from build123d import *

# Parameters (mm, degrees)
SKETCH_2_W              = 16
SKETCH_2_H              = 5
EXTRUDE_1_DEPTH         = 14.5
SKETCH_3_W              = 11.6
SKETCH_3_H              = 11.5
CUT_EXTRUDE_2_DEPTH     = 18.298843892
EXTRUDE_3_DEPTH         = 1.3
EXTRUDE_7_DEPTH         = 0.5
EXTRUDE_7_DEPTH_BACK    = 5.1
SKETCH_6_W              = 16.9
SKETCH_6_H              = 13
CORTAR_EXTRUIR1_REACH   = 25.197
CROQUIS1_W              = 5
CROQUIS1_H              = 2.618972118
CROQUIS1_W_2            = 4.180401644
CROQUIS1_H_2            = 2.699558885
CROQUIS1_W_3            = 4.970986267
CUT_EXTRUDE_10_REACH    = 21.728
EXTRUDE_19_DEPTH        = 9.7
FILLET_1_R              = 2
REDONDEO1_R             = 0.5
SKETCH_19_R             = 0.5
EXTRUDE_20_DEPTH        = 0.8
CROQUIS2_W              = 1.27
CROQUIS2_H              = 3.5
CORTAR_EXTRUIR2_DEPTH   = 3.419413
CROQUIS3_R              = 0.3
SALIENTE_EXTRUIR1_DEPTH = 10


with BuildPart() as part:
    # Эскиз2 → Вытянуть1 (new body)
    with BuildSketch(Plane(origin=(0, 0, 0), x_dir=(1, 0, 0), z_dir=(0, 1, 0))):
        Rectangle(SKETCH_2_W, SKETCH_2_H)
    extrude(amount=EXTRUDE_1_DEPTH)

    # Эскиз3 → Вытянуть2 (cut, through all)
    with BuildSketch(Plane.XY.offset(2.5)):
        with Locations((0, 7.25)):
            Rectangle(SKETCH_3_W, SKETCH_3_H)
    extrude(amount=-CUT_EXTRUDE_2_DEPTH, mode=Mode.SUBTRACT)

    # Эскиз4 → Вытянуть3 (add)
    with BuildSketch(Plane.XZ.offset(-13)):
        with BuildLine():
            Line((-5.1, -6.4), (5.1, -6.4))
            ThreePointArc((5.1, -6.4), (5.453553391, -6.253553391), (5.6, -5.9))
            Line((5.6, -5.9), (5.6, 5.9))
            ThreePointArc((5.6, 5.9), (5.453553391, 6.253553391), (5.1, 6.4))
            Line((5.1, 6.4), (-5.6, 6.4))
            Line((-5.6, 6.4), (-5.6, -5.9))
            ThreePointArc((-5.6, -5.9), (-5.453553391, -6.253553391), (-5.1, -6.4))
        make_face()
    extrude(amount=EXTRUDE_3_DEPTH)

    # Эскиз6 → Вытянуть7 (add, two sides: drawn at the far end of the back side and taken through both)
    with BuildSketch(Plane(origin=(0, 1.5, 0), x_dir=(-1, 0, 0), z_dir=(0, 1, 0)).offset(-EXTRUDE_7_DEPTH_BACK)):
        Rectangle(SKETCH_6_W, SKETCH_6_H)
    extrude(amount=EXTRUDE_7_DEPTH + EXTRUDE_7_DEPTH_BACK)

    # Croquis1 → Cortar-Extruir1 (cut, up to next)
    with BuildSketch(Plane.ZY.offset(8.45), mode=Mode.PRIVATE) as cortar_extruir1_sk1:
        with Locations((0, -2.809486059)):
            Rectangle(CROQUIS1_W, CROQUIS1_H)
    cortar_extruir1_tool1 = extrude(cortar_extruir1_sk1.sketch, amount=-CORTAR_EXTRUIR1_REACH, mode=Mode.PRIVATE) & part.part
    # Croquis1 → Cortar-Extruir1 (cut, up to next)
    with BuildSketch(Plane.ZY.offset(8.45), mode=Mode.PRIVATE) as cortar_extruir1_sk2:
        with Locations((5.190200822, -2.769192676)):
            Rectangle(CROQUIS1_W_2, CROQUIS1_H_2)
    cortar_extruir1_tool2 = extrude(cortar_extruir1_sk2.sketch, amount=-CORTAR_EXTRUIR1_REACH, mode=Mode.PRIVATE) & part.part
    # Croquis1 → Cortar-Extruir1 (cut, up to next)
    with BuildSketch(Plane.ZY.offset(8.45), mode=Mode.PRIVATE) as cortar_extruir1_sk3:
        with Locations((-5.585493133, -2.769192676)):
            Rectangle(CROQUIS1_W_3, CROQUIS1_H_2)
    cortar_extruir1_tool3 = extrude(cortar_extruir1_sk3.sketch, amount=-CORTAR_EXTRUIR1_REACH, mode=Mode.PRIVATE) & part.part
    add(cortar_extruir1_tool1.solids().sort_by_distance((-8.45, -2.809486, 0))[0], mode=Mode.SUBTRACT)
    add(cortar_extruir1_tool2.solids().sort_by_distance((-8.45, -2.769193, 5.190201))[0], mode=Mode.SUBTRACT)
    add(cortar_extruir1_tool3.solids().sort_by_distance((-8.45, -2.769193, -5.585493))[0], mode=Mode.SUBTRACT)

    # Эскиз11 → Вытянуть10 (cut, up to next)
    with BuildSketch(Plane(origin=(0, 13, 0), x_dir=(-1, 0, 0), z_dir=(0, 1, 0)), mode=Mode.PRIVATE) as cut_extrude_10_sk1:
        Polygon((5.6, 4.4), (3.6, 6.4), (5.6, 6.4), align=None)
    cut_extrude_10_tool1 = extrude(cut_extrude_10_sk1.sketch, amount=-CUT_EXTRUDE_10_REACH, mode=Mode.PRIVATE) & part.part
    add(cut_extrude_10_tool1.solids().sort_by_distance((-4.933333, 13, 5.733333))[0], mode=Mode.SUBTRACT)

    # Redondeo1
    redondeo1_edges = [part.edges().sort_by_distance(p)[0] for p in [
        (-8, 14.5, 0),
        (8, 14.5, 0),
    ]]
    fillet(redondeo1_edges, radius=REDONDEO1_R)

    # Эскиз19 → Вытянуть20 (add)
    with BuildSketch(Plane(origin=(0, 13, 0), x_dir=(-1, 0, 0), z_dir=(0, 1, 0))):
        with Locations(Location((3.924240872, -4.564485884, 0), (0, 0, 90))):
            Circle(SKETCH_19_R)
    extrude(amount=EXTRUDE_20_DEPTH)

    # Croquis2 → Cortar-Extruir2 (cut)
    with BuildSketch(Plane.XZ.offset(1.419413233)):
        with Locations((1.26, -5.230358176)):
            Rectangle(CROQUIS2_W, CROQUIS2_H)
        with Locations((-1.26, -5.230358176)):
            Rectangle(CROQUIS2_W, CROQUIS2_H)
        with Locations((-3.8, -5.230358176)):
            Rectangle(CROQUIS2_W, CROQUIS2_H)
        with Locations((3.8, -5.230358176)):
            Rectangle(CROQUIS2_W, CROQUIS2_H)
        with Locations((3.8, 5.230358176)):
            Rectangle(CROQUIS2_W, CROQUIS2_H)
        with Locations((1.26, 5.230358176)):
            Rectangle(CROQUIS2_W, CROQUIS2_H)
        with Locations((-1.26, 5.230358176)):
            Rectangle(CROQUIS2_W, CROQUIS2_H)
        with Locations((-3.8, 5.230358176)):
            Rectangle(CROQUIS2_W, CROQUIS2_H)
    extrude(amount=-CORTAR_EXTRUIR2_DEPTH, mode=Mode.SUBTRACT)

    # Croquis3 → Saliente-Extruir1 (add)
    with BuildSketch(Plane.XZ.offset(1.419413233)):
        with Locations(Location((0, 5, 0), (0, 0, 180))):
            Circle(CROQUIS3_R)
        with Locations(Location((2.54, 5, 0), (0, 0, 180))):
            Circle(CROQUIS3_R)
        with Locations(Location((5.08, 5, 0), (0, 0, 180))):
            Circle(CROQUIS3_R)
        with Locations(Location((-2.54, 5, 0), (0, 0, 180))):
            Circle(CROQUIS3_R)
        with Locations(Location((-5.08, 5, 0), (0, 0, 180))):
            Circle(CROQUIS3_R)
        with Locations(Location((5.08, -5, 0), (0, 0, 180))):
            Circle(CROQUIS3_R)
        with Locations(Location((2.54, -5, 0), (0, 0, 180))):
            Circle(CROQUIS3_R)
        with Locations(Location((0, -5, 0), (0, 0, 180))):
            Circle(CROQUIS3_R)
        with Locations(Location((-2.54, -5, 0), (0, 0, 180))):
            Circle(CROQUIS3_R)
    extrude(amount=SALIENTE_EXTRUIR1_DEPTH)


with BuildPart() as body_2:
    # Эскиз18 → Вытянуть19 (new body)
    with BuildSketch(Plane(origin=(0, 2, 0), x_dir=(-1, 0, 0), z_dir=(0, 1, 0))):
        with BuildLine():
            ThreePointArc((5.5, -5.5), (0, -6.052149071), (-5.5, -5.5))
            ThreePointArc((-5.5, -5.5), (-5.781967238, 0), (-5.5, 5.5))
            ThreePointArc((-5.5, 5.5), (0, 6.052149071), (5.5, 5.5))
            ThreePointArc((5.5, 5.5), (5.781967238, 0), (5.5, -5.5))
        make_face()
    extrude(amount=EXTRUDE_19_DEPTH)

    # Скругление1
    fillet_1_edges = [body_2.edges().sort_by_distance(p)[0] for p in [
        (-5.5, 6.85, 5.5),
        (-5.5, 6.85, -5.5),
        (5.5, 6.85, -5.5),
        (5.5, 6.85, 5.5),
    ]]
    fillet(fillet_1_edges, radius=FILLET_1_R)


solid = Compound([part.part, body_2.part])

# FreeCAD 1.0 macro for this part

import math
import FreeCAD as App
import Part
import Sketcher
Q = App.Units.Quantity


def edges_at(feature, points):
    """Names of the edges that pass closest to the given points."""
    edges = feature.Shape.Edges
    near = lambda p: min(range(len(edges)), key=lambda i: edges[i].distToShape(Part.Vertex(*p))[0])
    return sorted({f"Edge{near(p) + 1}" for p in points})

doc = App.newDocument("Part")
body = doc.addObject("PartDesign::Body", "Body")

sketch1 = body.newObject("Sketcher::SketchObject", "Sketch")
sketch1.AttachmentSupport = (doc.getObject("XZ_Plane"), [""])
sketch1.MapMode = "FlatFace"
sketch1.addGeometry(Part.LineSegment(App.Vector(-8, -2.5, 0), App.Vector(-8, 2.5, 0)), False)
sketch1.addGeometry(Part.LineSegment(App.Vector(-8, 2.5, 0), App.Vector(8, 2.5, 0)), False)
sketch1.addGeometry(Part.LineSegment(App.Vector(8, 2.5, 0), App.Vector(8, -2.5, 0)), False)
sketch1.addGeometry(Part.LineSegment(App.Vector(8, -2.5, 0), App.Vector(-8, -2.5, 0)), False)
sketch1.addConstraint(Sketcher.Constraint("Coincident", 0, 2, 1, 1))
sketch1.addConstraint(Sketcher.Constraint("Coincident", 1, 2, 2, 1))
sketch1.addConstraint(Sketcher.Constraint("Coincident", 2, 2, 3, 1))
sketch1.addConstraint(Sketcher.Constraint("Coincident", 3, 2, 0, 1))
sketch1.addConstraint(Sketcher.Constraint("Vertical", 0))
sketch1.addConstraint(Sketcher.Constraint("Horizontal", 1))
sketch1.addConstraint(Sketcher.Constraint("Vertical", 2))
sketch1.addConstraint(Sketcher.Constraint("Horizontal", 3))
sketch1.addConstraint(Sketcher.Constraint("Symmetric", 0, 2, 2, 2, -1, 1))
sketch1.addConstraint(Sketcher.Constraint("DistanceX", 1, 1, 1, 2, Q("16 mm")))
sketch1.addConstraint(Sketcher.Constraint("DistanceY", 0, 1, 0, 2, Q("5 mm")))
pad1 = body.newObject("PartDesign::Pad", "Pad")
pad1.Profile = sketch1
pad1.Length = 14.5
pad1.Reversed = True

sketch2 = body.newObject("Sketcher::SketchObject", "Sketch001")
sketch2.AttachmentSupport = (doc.getObject("XY_Plane"), [""])
sketch2.MapMode = "FlatFace"
sketch2.AttachmentOffset = App.Placement(App.Vector(0, 0, 2.5), App.Rotation())
sketch2.addGeometry(Part.LineSegment(App.Vector(-5.8, 13, 0), App.Vector(-5.8, 1.5, 0)), False)
sketch2.addGeometry(Part.LineSegment(App.Vector(-5.8, 1.5, 0), App.Vector(5.8, 1.5, 0)), False)
sketch2.addGeometry(Part.LineSegment(App.Vector(5.8, 1.5, 0), App.Vector(5.8, 13, 0)), False)
sketch2.addGeometry(Part.LineSegment(App.Vector(5.8, 13, 0), App.Vector(-5.8, 13, 0)), False)
sketch2.addConstraint(Sketcher.Constraint("Coincident", 0, 2, 1, 1))
sketch2.addConstraint(Sketcher.Constraint("Coincident", 1, 2, 2, 1))
sketch2.addConstraint(Sketcher.Constraint("Coincident", 2, 2, 3, 1))
sketch2.addConstraint(Sketcher.Constraint("Coincident", 3, 2, 0, 1))
sketch2.addConstraint(Sketcher.Constraint("Vertical", 0))
sketch2.addConstraint(Sketcher.Constraint("Horizontal", 1))
sketch2.addConstraint(Sketcher.Constraint("Vertical", 2))
sketch2.addConstraint(Sketcher.Constraint("Horizontal", 3))
sketch2.addConstraint(Sketcher.Constraint("DistanceX", 1, 1, 1, 2, Q("11.6 mm")))
sketch2.addConstraint(Sketcher.Constraint("DistanceY", 0, 2, 0, 1, Q("11.5 mm")))
sketch2.addConstraint(Sketcher.Constraint("DistanceY", -1, 1, 2, 2, Q("13 mm")))
sketch2.addConstraint(Sketcher.Constraint("DistanceX", 0, 2, -1, 1, Q("5.8 mm")))
pocket1 = body.newObject("PartDesign::Pocket", "Pocket")
pocket1.Profile = sketch2
pocket1.Type = "ThroughAll"

sketch3 = body.newObject("Sketcher::SketchObject", "Sketch002")
sketch3.AttachmentSupport = (doc.getObject("XZ_Plane"), [""])
sketch3.MapMode = "FlatFace"
sketch3.AttachmentOffset = App.Placement(App.Vector(0, 0, -13), App.Rotation())
sketch3.addGeometry(Part.LineSegment(App.Vector(-5.1, -6.4, 0), App.Vector(5.1, -6.4, 0)), False)
sketch3.addGeometry(Part.ArcOfCircle(Part.Circle(App.Vector(5.1, -5.9, 0), App.Vector(0, 0, 1), 0.5), math.radians(-90), math.radians(0)), False)
sketch3.addGeometry(Part.LineSegment(App.Vector(5.6, -5.9, 0), App.Vector(5.6, 5.9, 0)), False)
sketch3.addGeometry(Part.ArcOfCircle(Part.Circle(App.Vector(5.1, 5.9, 0), App.Vector(0, 0, 1), 0.5), math.radians(0), math.radians(90)), False)
sketch3.addGeometry(Part.LineSegment(App.Vector(5.1, 6.4, 0), App.Vector(-5.6, 6.4, 0)), False)
sketch3.addGeometry(Part.LineSegment(App.Vector(-5.6, 6.4, 0), App.Vector(-5.6, -5.9, 0)), False)
sketch3.addGeometry(Part.ArcOfCircle(Part.Circle(App.Vector(-5.1, -5.9, 0), App.Vector(0, 0, 1), 0.5), math.radians(180), math.radians(270)), False)
sketch3.addConstraint(Sketcher.Constraint("Tangent", 0, 2, 1, 1))
sketch3.addConstraint(Sketcher.Constraint("Tangent", 1, 2, 2, 1))
sketch3.addConstraint(Sketcher.Constraint("Tangent", 2, 2, 3, 1))
sketch3.addConstraint(Sketcher.Constraint("Tangent", 3, 2, 4, 1))
sketch3.addConstraint(Sketcher.Constraint("Coincident", 4, 2, 5, 1))
sketch3.addConstraint(Sketcher.Constraint("Tangent", 5, 2, 6, 1))
sketch3.addConstraint(Sketcher.Constraint("Tangent", 6, 2, 0, 1))
sketch3.addConstraint(Sketcher.Constraint("Horizontal", 0))
sketch3.addConstraint(Sketcher.Constraint("Vertical", 2))
sketch3.addConstraint(Sketcher.Constraint("Horizontal", 4))
sketch3.addConstraint(Sketcher.Constraint("Vertical", 5))
sketch3.addConstraint(Sketcher.Constraint("Equal", 1, 3))
sketch3.addConstraint(Sketcher.Constraint("Equal", 3, 6))
sketch3.addConstraint(Sketcher.Constraint("Symmetric", 3, 3, 6, 3, -1, 1))
sketch3.addConstraint(Sketcher.Constraint("Radius", 1, Q("0.5 mm")))
sketch3.addConstraint(Sketcher.Constraint("DistanceX", 0, 1, 0, 2, Q("10.2 mm")))
sketch3.addConstraint(Sketcher.Constraint("DistanceY", 2, 1, 2, 2, Q("11.8 mm")))
pad2 = body.newObject("PartDesign::Pad", "Pad001")
pad2.Profile = sketch3
pad2.Length = 1.3

sketch4 = body.newObject("Sketcher::SketchObject", "Sketch003")
sketch4.AttachmentSupport = (doc.getObject("XZ_Plane"), [""])
sketch4.MapMode = "FlatFace"
sketch4.AttachmentOffset = App.Placement(App.Vector(0, 0, -1.5), App.Rotation())
sketch4.addGeometry(Part.LineSegment(App.Vector(8.45, 6.5, 0), App.Vector(8.45, -6.5, 0)), False)
sketch4.addGeometry(Part.LineSegment(App.Vector(8.45, -6.5, 0), App.Vector(-8.45, -6.5, 0)), False)
sketch4.addGeometry(Part.LineSegment(App.Vector(-8.45, -6.5, 0), App.Vector(-8.45, 6.5, 0)), False)
sketch4.addGeometry(Part.LineSegment(App.Vector(-8.45, 6.5, 0), App.Vector(8.45, 6.5, 0)), False)
sketch4.addConstraint(Sketcher.Constraint("Coincident", 0, 2, 1, 1))
sketch4.addConstraint(Sketcher.Constraint("Coincident", 1, 2, 2, 1))
sketch4.addConstraint(Sketcher.Constraint("Coincident", 2, 2, 3, 1))
sketch4.addConstraint(Sketcher.Constraint("Coincident", 3, 2, 0, 1))
sketch4.addConstraint(Sketcher.Constraint("Vertical", 0))
sketch4.addConstraint(Sketcher.Constraint("Horizontal", 1))
sketch4.addConstraint(Sketcher.Constraint("Vertical", 2))
sketch4.addConstraint(Sketcher.Constraint("Horizontal", 3))
sketch4.addConstraint(Sketcher.Constraint("Symmetric", 0, 2, 2, 2, -1, 1))
sketch4.addConstraint(Sketcher.Constraint("DistanceY", 0, 2, 0, 1, Q("13 mm")))
sketch4.addConstraint(Sketcher.Constraint("DistanceX", 1, 2, 1, 1, Q("16.9 mm")))
pad3 = body.newObject("PartDesign::Pad", "Pad002")
pad3.Profile = sketch4
pad3.Type = "TwoLengths"
pad3.Length = 0.5
pad3.Length2 = 5.1
pad3.Reversed = True

sketch5 = body.newObject("Sketcher::SketchObject", "Sketch004")
sketch5.AttachmentSupport = (doc.getObject("YZ_Plane"), [""])
sketch5.MapMode = "FlatFace"
sketch5.AttachmentOffset = App.Placement(App.Vector(0, 0, -8.45), App.Rotation())
sketch5.addGeometry(Part.LineSegment(App.Vector(-1.5, -2.5, 0), App.Vector(-4.118972, -2.5, 0)), False)
sketch5.addGeometry(Part.LineSegment(App.Vector(-4.118972, -2.5, 0), App.Vector(-4.118972, 2.5, 0)), False)
sketch5.addGeometry(Part.LineSegment(App.Vector(-4.118972, 2.5, 0), App.Vector(-1.5, 2.5, 0)), False)
sketch5.addGeometry(Part.LineSegment(App.Vector(-1.5, 2.5, 0), App.Vector(-1.5, -2.5, 0)), False)
sketch5.addConstraint(Sketcher.Constraint("Coincident", 0, 2, 1, 1))
sketch5.addConstraint(Sketcher.Constraint("Coincident", 1, 2, 2, 1))
sketch5.addConstraint(Sketcher.Constraint("Coincident", 2, 2, 3, 1))
sketch5.addConstraint(Sketcher.Constraint("Coincident", 3, 2, 0, 1))
sketch5.addConstraint(Sketcher.Constraint("Horizontal", 0))
sketch5.addConstraint(Sketcher.Constraint("Vertical", 1))
sketch5.addConstraint(Sketcher.Constraint("Horizontal", 2))
sketch5.addConstraint(Sketcher.Constraint("Vertical", 3))
sketch5.addConstraint(Sketcher.Constraint("DistanceY", 1, 1, 1, 2, Q("5 mm")))
sketch5.addConstraint(Sketcher.Constraint("DistanceY", 0, 2, -1, 1, Q("2.5 mm")))
sketch5.addConstraint(Sketcher.Constraint("DistanceX", 2, 2, -1, 1, Q("1.5 mm")))
sketch5.addConstraint(Sketcher.Constraint("DistanceX", 0, 2, 0, 1, Q("2.618972 mm")))
pocket2 = body.newObject("PartDesign::Pocket", "Pocket001")
pocket2.Profile = sketch5
pocket2.Type = "UpToFirst"
pocket2.Reversed = True

sketch6 = body.newObject("Sketcher::SketchObject", "Sketch005")
sketch6.AttachmentSupport = (doc.getObject("YZ_Plane"), [""])
sketch6.MapMode = "FlatFace"
sketch6.AttachmentOffset = App.Placement(App.Vector(0, 0, -8.45), App.Rotation())
sketch6.addGeometry(Part.LineSegment(App.Vector(-1.419413, 3.1, 0), App.Vector(-4.118972, 3.1, 0)), False)
sketch6.addGeometry(Part.LineSegment(App.Vector(-4.118972, 3.1, 0), App.Vector(-4.118972, 7.280402, 0)), False)
sketch6.addGeometry(Part.LineSegment(App.Vector(-4.118972, 7.280402, 0), App.Vector(-1.419413, 7.280402, 0)), False)
sketch6.addGeometry(Part.LineSegment(App.Vector(-1.419413, 7.280402, 0), App.Vector(-1.419413, 3.1, 0)), False)
sketch6.addConstraint(Sketcher.Constraint("Coincident", 0, 2, 1, 1))
sketch6.addConstraint(Sketcher.Constraint("Coincident", 1, 2, 2, 1))
sketch6.addConstraint(Sketcher.Constraint("Coincident", 2, 2, 3, 1))
sketch6.addConstraint(Sketcher.Constraint("Coincident", 3, 2, 0, 1))
sketch6.addConstraint(Sketcher.Constraint("Horizontal", 0))
sketch6.addConstraint(Sketcher.Constraint("Vertical", 1))
sketch6.addConstraint(Sketcher.Constraint("Horizontal", 2))
sketch6.addConstraint(Sketcher.Constraint("Vertical", 3))
sketch6.addConstraint(Sketcher.Constraint("DistanceY", -1, 1, 0, 2, Q("3.1 mm")))
sketch6.addConstraint(Sketcher.Constraint("DistanceY", 1, 1, 1, 2, Q("4.180402 mm")))
sketch6.addConstraint(Sketcher.Constraint("DistanceX", 0, 2, 0, 1, Q("2.699559 mm")))
sketch6.addConstraint(Sketcher.Constraint("DistanceX", 0, 2, -1, 1, Q("4.118972 mm")))
pocket3 = body.newObject("PartDesign::Pocket", "Pocket002")
pocket3.Profile = sketch6
pocket3.Type = "UpToFirst"
pocket3.Reversed = True

sketch7 = body.newObject("Sketcher::SketchObject", "Sketch006")
sketch7.AttachmentSupport = (doc.getObject("YZ_Plane"), [""])
sketch7.MapMode = "FlatFace"
sketch7.AttachmentOffset = App.Placement(App.Vector(0, 0, -8.45), App.Rotation())
sketch7.addGeometry(Part.LineSegment(App.Vector(-1.419413, -8.070986, 0), App.Vector(-4.118972, -8.070986, 0)), False)
sketch7.addGeometry(Part.LineSegment(App.Vector(-4.118972, -8.070986, 0), App.Vector(-4.118972, -3.1, 0)), False)
sketch7.addGeometry(Part.LineSegment(App.Vector(-4.118972, -3.1, 0), App.Vector(-1.419413, -3.1, 0)), False)
sketch7.addGeometry(Part.LineSegment(App.Vector(-1.419413, -3.1, 0), App.Vector(-1.419413, -8.070986, 0)), False)
sketch7.addConstraint(Sketcher.Constraint("Coincident", 0, 2, 1, 1))
sketch7.addConstraint(Sketcher.Constraint("Coincident", 1, 2, 2, 1))
sketch7.addConstraint(Sketcher.Constraint("Coincident", 2, 2, 3, 1))
sketch7.addConstraint(Sketcher.Constraint("Coincident", 3, 2, 0, 1))
sketch7.addConstraint(Sketcher.Constraint("Horizontal", 0))
sketch7.addConstraint(Sketcher.Constraint("Vertical", 1))
sketch7.addConstraint(Sketcher.Constraint("Horizontal", 2))
sketch7.addConstraint(Sketcher.Constraint("Vertical", 3))
sketch7.addConstraint(Sketcher.Constraint("DistanceY", 1, 2, -1, 1, Q("3.1 mm")))
sketch7.addConstraint(Sketcher.Constraint("DistanceX", 0, 2, 0, 1, Q("2.699559 mm")))
sketch7.addConstraint(Sketcher.Constraint("DistanceY", 1, 1, 1, 2, Q("4.970986 mm")))
sketch7.addConstraint(Sketcher.Constraint("DistanceX", 0, 2, -1, 1, Q("4.118972 mm")))
pocket4 = body.newObject("PartDesign::Pocket", "Pocket003")
pocket4.Profile = sketch7
pocket4.Type = "UpToFirst"
pocket4.Reversed = True

sketch8 = body.newObject("Sketcher::SketchObject", "Sketch007")
sketch8.AttachmentSupport = (doc.getObject("XZ_Plane"), [""])
sketch8.MapMode = "FlatFace"
sketch8.AttachmentOffset = App.Placement(App.Vector(0, 0, -13), App.Rotation())
sketch8.addGeometry(Part.LineSegment(App.Vector(-3.6, 6.4, 0), App.Vector(-5.6, 4.4, 0)), False)
sketch8.addGeometry(Part.LineSegment(App.Vector(-5.6, 4.4, 0), App.Vector(-5.6, 6.4, 0)), False)
sketch8.addGeometry(Part.LineSegment(App.Vector(-5.6, 6.4, 0), App.Vector(-3.6, 6.4, 0)), False)
sketch8.addConstraint(Sketcher.Constraint("Coincident", 0, 2, 1, 1))
sketch8.addConstraint(Sketcher.Constraint("Coincident", 1, 2, 2, 1))
sketch8.addConstraint(Sketcher.Constraint("Coincident", 2, 2, 0, 1))
sketch8.addConstraint(Sketcher.Constraint("Vertical", 1))
sketch8.addConstraint(Sketcher.Constraint("Horizontal", 2))
sketch8.addConstraint(Sketcher.Constraint("Equal", 2, 1))
sketch8.addConstraint(Sketcher.Constraint("DistanceX", 2, 1, 2, 2, Q("2 mm")))
sketch8.addConstraint(Sketcher.Constraint("DistanceX", 0, 2, -1, 1, Q("5.6 mm")))
sketch8.addConstraint(Sketcher.Constraint("DistanceY", -1, 1, 0, 2, Q("4.4 mm")))
pocket5 = body.newObject("PartDesign::Pocket", "Pocket004")
pocket5.Profile = sketch8
pocket5.Type = "UpToFirst"
pocket5.Reversed = True
doc.recompute()

fillet = body.newObject("PartDesign::Fillet", "Fillet")
fillet.Base = (pocket5, edges_at(pocket5, [(-8, 14.5, 0), (8, 14.5, 0)]))
fillet.Radius = 0.5

sketch9 = body.newObject("Sketcher::SketchObject", "Sketch008")
sketch9.AttachmentSupport = (doc.getObject("XZ_Plane"), [""])
sketch9.MapMode = "FlatFace"
sketch9.AttachmentOffset = App.Placement(App.Vector(0, 0, -13), App.Rotation())
sketch9.addGeometry(Part.Circle(App.Vector(-3.924241, -4.564486, 0), App.Vector(0, 0, 1), 0.5), False)
sketch9.addConstraint(Sketcher.Constraint("Diameter", 0, Q("1 mm")))
sketch9.addConstraint(Sketcher.Constraint("DistanceX", 0, 3, -1, 1, Q("3.924241 mm")))
sketch9.addConstraint(Sketcher.Constraint("DistanceY", 0, 3, -1, 1, Q("4.564486 mm")))
pad4 = body.newObject("PartDesign::Pad", "Pad003")
pad4.Profile = sketch9
pad4.Length = 0.8
pad4.Reversed = True

sketch10 = body.newObject("Sketcher::SketchObject", "Sketch009")
sketch10.AttachmentSupport = (doc.getObject("XZ_Plane"), [""])
sketch10.MapMode = "FlatFace"
sketch10.AttachmentOffset = App.Placement(App.Vector(0, 0, 1.419413), App.Rotation())
sketch10.addGeometry(Part.LineSegment(App.Vector(0.625, -3.480358, 0), App.Vector(0.625, -6.980358, 0)), False)
sketch10.addGeometry(Part.LineSegment(App.Vector(0.625, -6.980358, 0), App.Vector(1.895, -6.980358, 0)), False)
sketch10.addGeometry(Part.LineSegment(App.Vector(1.895, -6.980358, 0), App.Vector(1.895, -3.480358, 0)), False)
sketch10.addGeometry(Part.LineSegment(App.Vector(1.895, -3.480358, 0), App.Vector(0.625, -3.480358, 0)), False)
sketch10.addGeometry(Part.LineSegment(App.Vector(-1.895, -3.480358, 0), App.Vector(-1.895, -6.980358, 0)), False)
sketch10.addGeometry(Part.LineSegment(App.Vector(-1.895, -6.980358, 0), App.Vector(-0.625, -6.980358, 0)), False)
sketch10.addGeometry(Part.LineSegment(App.Vector(-0.625, -6.980358, 0), App.Vector(-0.625, -3.480358, 0)), False)
sketch10.addGeometry(Part.LineSegment(App.Vector(-0.625, -3.480358, 0), App.Vector(-1.895, -3.480358, 0)), False)
sketch10.addGeometry(Part.LineSegment(App.Vector(-4.435, -3.480358, 0), App.Vector(-4.435, -6.980358, 0)), False)
sketch10.addGeometry(Part.LineSegment(App.Vector(-4.435, -6.980358, 0), App.Vector(-3.165, -6.980358, 0)), False)
sketch10.addGeometry(Part.LineSegment(App.Vector(-3.165, -6.980358, 0), App.Vector(-3.165, -3.480358, 0)), False)
sketch10.addGeometry(Part.LineSegment(App.Vector(-3.165, -3.480358, 0), App.Vector(-4.435, -3.480358, 0)), False)
sketch10.addGeometry(Part.LineSegment(App.Vector(3.165, -3.480358, 0), App.Vector(3.165, -6.980358, 0)), False)
sketch10.addGeometry(Part.LineSegment(App.Vector(3.165, -6.980358, 0), App.Vector(4.435, -6.980358, 0)), False)
sketch10.addGeometry(Part.LineSegment(App.Vector(4.435, -6.980358, 0), App.Vector(4.435, -3.480358, 0)), False)
sketch10.addGeometry(Part.LineSegment(App.Vector(4.435, -3.480358, 0), App.Vector(3.165, -3.480358, 0)), False)
sketch10.addGeometry(Part.LineSegment(App.Vector(3.165, 6.980358, 0), App.Vector(3.165, 3.480358, 0)), False)
sketch10.addGeometry(Part.LineSegment(App.Vector(3.165, 3.480358, 0), App.Vector(4.435, 3.480358, 0)), False)
sketch10.addGeometry(Part.LineSegment(App.Vector(4.435, 3.480358, 0), App.Vector(4.435, 6.980358, 0)), False)
sketch10.addGeometry(Part.LineSegment(App.Vector(4.435, 6.980358, 0), App.Vector(3.165, 6.980358, 0)), False)
sketch10.addGeometry(Part.LineSegment(App.Vector(0.625, 6.980358, 0), App.Vector(0.625, 3.480358, 0)), False)
sketch10.addGeometry(Part.LineSegment(App.Vector(0.625, 3.480358, 0), App.Vector(1.895, 3.480358, 0)), False)
sketch10.addGeometry(Part.LineSegment(App.Vector(1.895, 3.480358, 0), App.Vector(1.895, 6.980358, 0)), False)
sketch10.addGeometry(Part.LineSegment(App.Vector(1.895, 6.980358, 0), App.Vector(0.625, 6.980358, 0)), False)
sketch10.addGeometry(Part.LineSegment(App.Vector(-1.895, 6.980358, 0), App.Vector(-1.895, 3.480358, 0)), False)
sketch10.addGeometry(Part.LineSegment(App.Vector(-1.895, 3.480358, 0), App.Vector(-0.625, 3.480358, 0)), False)
sketch10.addGeometry(Part.LineSegment(App.Vector(-0.625, 3.480358, 0), App.Vector(-0.625, 6.980358, 0)), False)
sketch10.addGeometry(Part.LineSegment(App.Vector(-0.625, 6.980358, 0), App.Vector(-1.895, 6.980358, 0)), False)
sketch10.addGeometry(Part.LineSegment(App.Vector(-4.435, 6.980358, 0), App.Vector(-4.435, 3.480358, 0)), False)
sketch10.addGeometry(Part.LineSegment(App.Vector(-4.435, 3.480358, 0), App.Vector(-3.165, 3.480358, 0)), False)
sketch10.addGeometry(Part.LineSegment(App.Vector(-3.165, 3.480358, 0), App.Vector(-3.165, 6.980358, 0)), False)
sketch10.addGeometry(Part.LineSegment(App.Vector(-3.165, 6.980358, 0), App.Vector(-4.435, 6.980358, 0)), False)
sketch10.addConstraint(Sketcher.Constraint("Coincident", 0, 2, 1, 1))
sketch10.addConstraint(Sketcher.Constraint("Coincident", 1, 2, 2, 1))
sketch10.addConstraint(Sketcher.Constraint("Coincident", 2, 2, 3, 1))
sketch10.addConstraint(Sketcher.Constraint("Coincident", 3, 2, 0, 1))
sketch10.addConstraint(Sketcher.Constraint("Coincident", 4, 2, 5, 1))
sketch10.addConstraint(Sketcher.Constraint("Coincident", 5, 2, 6, 1))
sketch10.addConstraint(Sketcher.Constraint("Coincident", 6, 2, 7, 1))
sketch10.addConstraint(Sketcher.Constraint("Coincident", 7, 2, 4, 1))
sketch10.addConstraint(Sketcher.Constraint("Coincident", 8, 2, 9, 1))
sketch10.addConstraint(Sketcher.Constraint("Coincident", 9, 2, 10, 1))
sketch10.addConstraint(Sketcher.Constraint("Coincident", 10, 2, 11, 1))
sketch10.addConstraint(Sketcher.Constraint("Coincident", 11, 2, 8, 1))
sketch10.addConstraint(Sketcher.Constraint("Coincident", 12, 2, 13, 1))
sketch10.addConstraint(Sketcher.Constraint("Coincident", 13, 2, 14, 1))
sketch10.addConstraint(Sketcher.Constraint("Coincident", 14, 2, 15, 1))
sketch10.addConstraint(Sketcher.Constraint("Coincident", 15, 2, 12, 1))
sketch10.addConstraint(Sketcher.Constraint("Coincident", 16, 2, 17, 1))
sketch10.addConstraint(Sketcher.Constraint("Coincident", 17, 2, 18, 1))
sketch10.addConstraint(Sketcher.Constraint("Coincident", 18, 2, 19, 1))
sketch10.addConstraint(Sketcher.Constraint("Coincident", 19, 2, 16, 1))
sketch10.addConstraint(Sketcher.Constraint("Coincident", 20, 2, 21, 1))
sketch10.addConstraint(Sketcher.Constraint("Coincident", 21, 2, 22, 1))
sketch10.addConstraint(Sketcher.Constraint("Coincident", 22, 2, 23, 1))
sketch10.addConstraint(Sketcher.Constraint("Coincident", 23, 2, 20, 1))
sketch10.addConstraint(Sketcher.Constraint("Coincident", 24, 2, 25, 1))
sketch10.addConstraint(Sketcher.Constraint("Coincident", 25, 2, 26, 1))
sketch10.addConstraint(Sketcher.Constraint("Coincident", 26, 2, 27, 1))
sketch10.addConstraint(Sketcher.Constraint("Coincident", 27, 2, 24, 1))
sketch10.addConstraint(Sketcher.Constraint("Coincident", 28, 2, 29, 1))
sketch10.addConstraint(Sketcher.Constraint("Coincident", 29, 2, 30, 1))
sketch10.addConstraint(Sketcher.Constraint("Coincident", 30, 2, 31, 1))
sketch10.addConstraint(Sketcher.Constraint("Coincident", 31, 2, 28, 1))
sketch10.addConstraint(Sketcher.Constraint("Vertical", 0))
sketch10.addConstraint(Sketcher.Constraint("Horizontal", 1))
sketch10.addConstraint(Sketcher.Constraint("Vertical", 2))
sketch10.addConstraint(Sketcher.Constraint("Horizontal", 3))
sketch10.addConstraint(Sketcher.Constraint("Vertical", 4))
sketch10.addConstraint(Sketcher.Constraint("Horizontal", 5))
sketch10.addConstraint(Sketcher.Constraint("Vertical", 6))
sketch10.addConstraint(Sketcher.Constraint("Horizontal", 7))
sketch10.addConstraint(Sketcher.Constraint("Vertical", 8))
sketch10.addConstraint(Sketcher.Constraint("Horizontal", 9))
sketch10.addConstraint(Sketcher.Constraint("Vertical", 10))
sketch10.addConstraint(Sketcher.Constraint("Horizontal", 11))
sketch10.addConstraint(Sketcher.Constraint("Vertical", 12))
sketch10.addConstraint(Sketcher.Constraint("Horizontal", 13))
sketch10.addConstraint(Sketcher.Constraint("Vertical", 14))
sketch10.addConstraint(Sketcher.Constraint("Horizontal", 15))
sketch10.addConstraint(Sketcher.Constraint("Vertical", 16))
sketch10.addConstraint(Sketcher.Constraint("Horizontal", 17))
sketch10.addConstraint(Sketcher.Constraint("Vertical", 18))
sketch10.addConstraint(Sketcher.Constraint("Horizontal", 19))
sketch10.addConstraint(Sketcher.Constraint("Vertical", 20))
sketch10.addConstraint(Sketcher.Constraint("Horizontal", 21))
sketch10.addConstraint(Sketcher.Constraint("Vertical", 22))
sketch10.addConstraint(Sketcher.Constraint("Horizontal", 23))
sketch10.addConstraint(Sketcher.Constraint("Vertical", 24))
sketch10.addConstraint(Sketcher.Constraint("Horizontal", 25))
sketch10.addConstraint(Sketcher.Constraint("Vertical", 26))
sketch10.addConstraint(Sketcher.Constraint("Horizontal", 27))
sketch10.addConstraint(Sketcher.Constraint("Vertical", 28))
sketch10.addConstraint(Sketcher.Constraint("Horizontal", 29))
sketch10.addConstraint(Sketcher.Constraint("Vertical", 30))
sketch10.addConstraint(Sketcher.Constraint("Horizontal", 31))
sketch10.addConstraint(Sketcher.Constraint("Symmetric", 10, 2, 16, 2, -1, 1))
sketch10.addConstraint(Sketcher.Constraint("Symmetric", 8, 2, 18, 2, -1, 1))
sketch10.addConstraint(Sketcher.Constraint("Symmetric", 6, 2, 20, 2, -1, 1))
sketch10.addConstraint(Sketcher.Constraint("Symmetric", 4, 2, 22, 2, -1, 1))
sketch10.addConstraint(Sketcher.Constraint("Symmetric", 2, 2, 24, 2, -1, 1))
sketch10.addConstraint(Sketcher.Constraint("Symmetric", 0, 2, 26, 2, -1, 1))
sketch10.addConstraint(Sketcher.Constraint("Symmetric", 14, 2, 28, 2, -1, 1))
sketch10.addConstraint(Sketcher.Constraint("Symmetric", 12, 2, 30, 2, -1, 1))
sketch10.addConstraint(Sketcher.Constraint("Symmetric", 1, 2, 4, 2, -2))
sketch10.addConstraint(Sketcher.Constraint("Symmetric", 3, 2, 6, 2, -2))
sketch10.addConstraint(Sketcher.Constraint("Symmetric", 9, 2, 12, 2, -2))
sketch10.addConstraint(Sketcher.Constraint("Symmetric", 11, 2, 14, 2, -2))
sketch10.addConstraint(Sketcher.Constraint("Horizontal", 5, 2, 8, 2))
sketch10.addConstraint(Sketcher.Constraint("Horizontal", 7, 2, 10, 2))
sketch10.addConstraint(Sketcher.Constraint("Equal", 7, 9))
sketch10.addConstraint(Sketcher.Constraint("DistanceY", 0, 2, 0, 1, Q("3.5 mm")))
sketch10.addConstraint(Sketcher.Constraint("DistanceX", 1, 1, 1, 2, Q("1.27 mm")))
sketch10.addConstraint(Sketcher.Constraint("DistanceX", 4, 2, 0, 2, Q("2.52 mm")))
sketch10.addConstraint(Sketcher.Constraint("DistanceX", 8, 2, 4, 2, Q("2.54 mm")))
sketch10.addConstraint(Sketcher.Constraint("DistanceY", 0, 2, -1, 1, Q("6.980358 mm")))
pocket6 = body.newObject("PartDesign::Pocket", "Pocket005")
pocket6.Profile = sketch10
pocket6.Length = 3.419413

sketch11 = body.newObject("Sketcher::SketchObject", "Sketch010")
sketch11.AttachmentSupport = (doc.getObject("XZ_Plane"), [""])
sketch11.MapMode = "FlatFace"
sketch11.AttachmentOffset = App.Placement(App.Vector(0, 0, 1.419413), App.Rotation())
sketch11.addGeometry(Part.Circle(App.Vector(0, 5, 0), App.Vector(0, 0, 1), 0.3), False)
sketch11.addGeometry(Part.Circle(App.Vector(2.54, 5, 0), App.Vector(0, 0, 1), 0.3), False)
sketch11.addGeometry(Part.Circle(App.Vector(5.08, 5, 0), App.Vector(0, 0, 1), 0.3), False)
sketch11.addGeometry(Part.Circle(App.Vector(-2.54, 5, 0), App.Vector(0, 0, 1), 0.3), False)
sketch11.addGeometry(Part.Circle(App.Vector(-5.08, 5, 0), App.Vector(0, 0, 1), 0.3), False)
sketch11.addGeometry(Part.Circle(App.Vector(5.08, -5, 0), App.Vector(0, 0, 1), 0.3), False)
sketch11.addGeometry(Part.Circle(App.Vector(2.54, -5, 0), App.Vector(0, 0, 1), 0.3), False)
sketch11.addGeometry(Part.Circle(App.Vector(0, -5, 0), App.Vector(0, 0, 1), 0.3), False)
sketch11.addGeometry(Part.Circle(App.Vector(-2.54, -5, 0), App.Vector(0, 0, 1), 0.3), False)
sketch11.addConstraint(Sketcher.Constraint("Equal", 0, 1))
sketch11.addConstraint(Sketcher.Constraint("Equal", 1, 2))
sketch11.addConstraint(Sketcher.Constraint("Equal", 2, 3))
sketch11.addConstraint(Sketcher.Constraint("Equal", 3, 4))
sketch11.addConstraint(Sketcher.Constraint("Equal", 4, 5))
sketch11.addConstraint(Sketcher.Constraint("Equal", 5, 6))
sketch11.addConstraint(Sketcher.Constraint("Equal", 6, 7))
sketch11.addConstraint(Sketcher.Constraint("Equal", 7, 8))
sketch11.addConstraint(Sketcher.Constraint("Symmetric", 4, 3, 5, 3, -1, 1))
sketch11.addConstraint(Sketcher.Constraint("Symmetric", 3, 3, 6, 3, -1, 1))
sketch11.addConstraint(Sketcher.Constraint("Symmetric", 0, 3, 7, 3, -1, 1))
sketch11.addConstraint(Sketcher.Constraint("Symmetric", 1, 3, 8, 3, -1, 1))
sketch11.addConstraint(Sketcher.Constraint("Symmetric", 1, 3, 3, 3, -2))
sketch11.addConstraint(Sketcher.Constraint("Symmetric", 2, 3, 4, 3, -2))
sketch11.addConstraint(Sketcher.Constraint("PointOnObject", 0, 3, -2))
sketch11.addConstraint(Sketcher.Constraint("Horizontal", 0, 3, 1, 3))
sketch11.addConstraint(Sketcher.Constraint("Horizontal", 1, 3, 2, 3))
sketch11.addConstraint(Sketcher.Constraint("Diameter", 0, Q("0.6 mm")))
sketch11.addConstraint(Sketcher.Constraint("DistanceY", -1, 1, 0, 3, Q("5 mm")))
sketch11.addConstraint(Sketcher.Constraint("DistanceX", -1, 1, 1, 3, Q("2.54 mm")))
sketch11.addConstraint(Sketcher.Constraint("DistanceX", -1, 1, 2, 3, Q("5.08 mm")))
pad5 = body.newObject("PartDesign::Pad", "Pad004")
pad5.Profile = sketch11
pad5.Length = 10
body2 = doc.addObject("PartDesign::Body", "Body001")

sketch12 = body2.newObject("Sketcher::SketchObject", "Sketch011")
sketch12.AttachmentSupport = (doc.getObject("XZ_Plane001"), [""])
sketch12.MapMode = "FlatFace"
sketch12.AttachmentOffset = App.Placement(App.Vector(0, 0, -2), App.Rotation())
sketch12.addGeometry(Part.ArcOfCircle(Part.Circle(App.Vector(0, 21.61689, 0), App.Vector(0, 0, 1), 27.669039), math.radians(-101.465517), math.radians(-78.534483)), False)
sketch12.addGeometry(Part.ArcOfCircle(Part.Circle(App.Vector(48, 0, 0), App.Vector(0, 0, 1), 53.781967), math.radians(174.1304), math.radians(185.8696)), False)
sketch12.addGeometry(Part.ArcOfCircle(Part.Circle(App.Vector(0, -21.61689, 0), App.Vector(0, 0, 1), 27.669039), math.radians(78.534483), math.radians(101.465517)), False)
sketch12.addGeometry(Part.ArcOfCircle(Part.Circle(App.Vector(-48, 0, 0), App.Vector(0, 0, 1), 53.781967), math.radians(-5.8696), math.radians(5.8696)), False)
sketch12.addConstraint(Sketcher.Constraint("Coincident", 0, 1, 1, 2))
sketch12.addConstraint(Sketcher.Constraint("Coincident", 1, 1, 2, 2))
sketch12.addConstraint(Sketcher.Constraint("Coincident", 2, 1, 3, 2))
sketch12.addConstraint(Sketcher.Constraint("Coincident", 3, 1, 0, 2))
sketch12.addConstraint(Sketcher.Constraint("Equal", 0, 2))
sketch12.addConstraint(Sketcher.Constraint("Equal", 1, 3))
sketch12.addConstraint(Sketcher.Constraint("Symmetric", 0, 3, 2, 3, -1, 1))
sketch12.addConstraint(Sketcher.Constraint("Symmetric", 1, 3, 3, 3, -1, 1))
sketch12.addConstraint(Sketcher.Constraint("Symmetric", 1, 1, 2, 1, -2))
sketch12.addConstraint(Sketcher.Constraint("DistanceX", -1, 1, 1, 3, Q("48 mm")))
sketch12.addConstraint(Sketcher.Constraint("DistanceY", 0, 1, 1, 1, Q("11 mm")))
sketch12.addConstraint(Sketcher.Constraint("DistanceX", 1, 1, 2, 1, Q("11 mm")))
sketch12.addConstraint(Sketcher.Constraint("Radius", 0, Q("27.669039 mm")))
pad6 = body2.newObject("PartDesign::Pad", "Pad005")
pad6.Profile = sketch12
pad6.Length = 9.7
pad6.Reversed = True
doc.recompute()

fillet2 = body2.newObject("PartDesign::Fillet", "Fillet001")
fillet2.Base = (pad6, edges_at(pad6, [
    (-5.5, 6.85, 5.5),
    (-5.5, 6.85, -5.5),
    (5.5, 6.85, -5.5),
    (5.5, 6.85, 5.5),
]))
fillet2.Radius = 2

doc.recompute()
